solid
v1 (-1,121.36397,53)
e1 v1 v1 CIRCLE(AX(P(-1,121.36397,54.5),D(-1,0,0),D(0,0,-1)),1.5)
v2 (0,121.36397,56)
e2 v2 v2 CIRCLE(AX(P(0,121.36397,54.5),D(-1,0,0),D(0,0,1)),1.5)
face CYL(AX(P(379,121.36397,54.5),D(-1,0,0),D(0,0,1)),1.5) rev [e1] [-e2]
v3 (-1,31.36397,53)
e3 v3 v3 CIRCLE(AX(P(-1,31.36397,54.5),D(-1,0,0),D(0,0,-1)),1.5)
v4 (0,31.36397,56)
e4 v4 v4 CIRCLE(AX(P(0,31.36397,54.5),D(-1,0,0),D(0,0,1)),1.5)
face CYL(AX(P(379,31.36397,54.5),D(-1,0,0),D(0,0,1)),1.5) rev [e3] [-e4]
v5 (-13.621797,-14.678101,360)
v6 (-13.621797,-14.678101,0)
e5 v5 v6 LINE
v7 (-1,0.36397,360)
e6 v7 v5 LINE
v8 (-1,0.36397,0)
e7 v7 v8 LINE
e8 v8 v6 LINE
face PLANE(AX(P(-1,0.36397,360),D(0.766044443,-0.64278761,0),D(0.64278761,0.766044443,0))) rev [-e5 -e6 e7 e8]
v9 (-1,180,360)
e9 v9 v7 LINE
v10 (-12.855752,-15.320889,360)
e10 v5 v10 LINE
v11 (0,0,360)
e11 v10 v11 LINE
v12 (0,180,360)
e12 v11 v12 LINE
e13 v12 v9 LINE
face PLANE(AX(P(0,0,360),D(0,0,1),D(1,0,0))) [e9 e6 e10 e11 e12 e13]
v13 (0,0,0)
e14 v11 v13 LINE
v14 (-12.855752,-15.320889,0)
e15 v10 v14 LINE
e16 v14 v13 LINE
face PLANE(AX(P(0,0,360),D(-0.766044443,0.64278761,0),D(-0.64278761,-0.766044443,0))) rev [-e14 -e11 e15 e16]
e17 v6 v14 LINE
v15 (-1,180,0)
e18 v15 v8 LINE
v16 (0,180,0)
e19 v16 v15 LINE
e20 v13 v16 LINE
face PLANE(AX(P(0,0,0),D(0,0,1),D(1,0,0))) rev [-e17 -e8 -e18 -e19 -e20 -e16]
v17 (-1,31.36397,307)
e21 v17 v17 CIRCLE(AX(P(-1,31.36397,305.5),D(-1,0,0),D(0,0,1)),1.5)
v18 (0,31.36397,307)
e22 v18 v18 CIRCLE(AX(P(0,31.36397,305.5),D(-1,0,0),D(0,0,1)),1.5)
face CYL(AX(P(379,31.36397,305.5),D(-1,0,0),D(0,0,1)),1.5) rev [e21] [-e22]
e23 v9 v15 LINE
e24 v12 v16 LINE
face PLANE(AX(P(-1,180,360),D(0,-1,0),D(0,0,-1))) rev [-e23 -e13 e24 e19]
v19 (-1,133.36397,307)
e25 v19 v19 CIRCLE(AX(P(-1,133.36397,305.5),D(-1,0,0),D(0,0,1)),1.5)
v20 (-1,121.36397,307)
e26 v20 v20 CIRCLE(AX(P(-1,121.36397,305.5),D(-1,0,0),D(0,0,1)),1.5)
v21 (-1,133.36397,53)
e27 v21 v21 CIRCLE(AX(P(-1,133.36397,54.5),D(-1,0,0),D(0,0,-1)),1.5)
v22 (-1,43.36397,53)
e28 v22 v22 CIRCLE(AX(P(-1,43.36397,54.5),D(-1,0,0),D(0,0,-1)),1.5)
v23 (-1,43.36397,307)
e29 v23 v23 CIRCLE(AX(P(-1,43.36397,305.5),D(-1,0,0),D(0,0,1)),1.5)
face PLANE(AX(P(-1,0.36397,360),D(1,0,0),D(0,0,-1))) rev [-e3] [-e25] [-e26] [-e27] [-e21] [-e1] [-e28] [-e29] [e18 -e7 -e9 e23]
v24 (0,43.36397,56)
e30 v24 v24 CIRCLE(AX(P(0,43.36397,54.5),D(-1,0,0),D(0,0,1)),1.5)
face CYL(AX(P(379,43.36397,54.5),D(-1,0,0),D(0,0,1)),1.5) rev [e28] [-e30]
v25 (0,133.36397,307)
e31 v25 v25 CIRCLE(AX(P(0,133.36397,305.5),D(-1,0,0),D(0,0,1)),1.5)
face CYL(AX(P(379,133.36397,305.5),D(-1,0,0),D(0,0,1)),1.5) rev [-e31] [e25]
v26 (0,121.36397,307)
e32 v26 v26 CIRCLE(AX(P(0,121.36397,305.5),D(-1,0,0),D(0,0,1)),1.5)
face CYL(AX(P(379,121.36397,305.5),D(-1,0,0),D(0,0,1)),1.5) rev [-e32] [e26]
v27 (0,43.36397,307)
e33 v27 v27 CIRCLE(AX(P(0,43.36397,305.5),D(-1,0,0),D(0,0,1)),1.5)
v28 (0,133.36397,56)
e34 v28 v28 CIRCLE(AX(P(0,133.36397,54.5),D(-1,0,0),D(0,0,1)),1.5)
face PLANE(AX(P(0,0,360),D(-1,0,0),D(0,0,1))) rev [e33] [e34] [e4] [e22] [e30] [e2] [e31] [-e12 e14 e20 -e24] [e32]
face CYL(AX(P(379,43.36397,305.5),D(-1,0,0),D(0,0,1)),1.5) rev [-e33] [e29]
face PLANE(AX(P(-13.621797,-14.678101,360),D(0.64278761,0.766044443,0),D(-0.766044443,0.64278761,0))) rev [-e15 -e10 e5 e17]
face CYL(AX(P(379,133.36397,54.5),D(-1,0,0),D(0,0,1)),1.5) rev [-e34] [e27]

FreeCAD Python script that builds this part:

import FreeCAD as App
import Part
import Sketcher
from FreeCAD import Vector
Q = App.Units.Quantity


def add_polygon(sketch, points):
    """Adds a closed chain of lines whose ends are joined by coincident constraints."""
    first, n = sketch.GeometryCount, len(points)
    for a, b in zip(points, points[1:] + points[:1]):
        sketch.addGeometry(Part.LineSegment(App.Vector(*a, 0), App.Vector(*b, 0)), False)
    for i in range(n):
        sketch.addConstraint(Sketcher.Constraint("Coincident", first + i, 2, first + (i + 1) % n, 1))

doc = App.newDocument("Part")
body = doc.addObject("PartDesign::Body", "Body")

sketch1 = body.newObject("Sketcher::SketchObject", "Sketch")
sketch1.AttachmentSupport = (doc.getObject("XY_Plane"), [""])
sketch1.MapMode = "FlatFace"
add_polygon(sketch1, [(0, 0), (0, 180), (-1, 180), (-1, 0.4), (-13.6, -14.7), (-12.9, -15.3)])
sketch1.addConstraint([
    Sketcher.Constraint("Vertical", 0),
    Sketcher.Constraint("Horizontal", 1),
    Sketcher.Constraint("Vertical", 2),
    Sketcher.Constraint("Coincident", 5, 2, -1, 1),
    Sketcher.Constraint("Perpendicular", 3, 4),
    Sketcher.Constraint("Perpendicular", 4, 5),
    Sketcher.Constraint("DistanceX", 1, 2, 1, 1, 1.0),
    Sketcher.Constraint("DistanceY", 0, 1, 0, 2, 180.0),
    Sketcher.Constraint("Angle", 3, Q("-130 deg")),
    Sketcher.Constraint("Distance", 4, 1.0),
    Sketcher.Constraint("Distance", 5, 20.0),
])
pad1 = body.newObject("PartDesign::Pad", "Pad")
pad1.Profile = sketch1
pad1.Length = 360

sketch2 = body.newObject("Sketcher::SketchObject", "Sketch001")
sketch2.AttachmentSupport = (doc.getObject("YZ_Plane"), [""])
sketch2.MapMode = "FlatFace"
sketch2.AttachmentOffset = App.Placement(Vector(0, 0, -1), App.Rotation())
sketch2.addGeometry([
    Part.Circle(Vector(31.4, 305.5, 0), Vector(0, 0, 1), 1.5),
    Part.Circle(Vector(43.4, 305.5, 0), Vector(0, 0, 1), 1.5),
    Part.Circle(Vector(121.4, 305.5, 0), Vector(0, 0, 1), 1.5),
    Part.Circle(Vector(133.4, 305.5, 0), Vector(0, 0, 1), 1.5),
    Part.Circle(Vector(121.4, 54.5, 0), Vector(0, 0, 1), 1.5),
    Part.Circle(Vector(31.4, 54.5, 0), Vector(0, 0, 1), 1.5),
    Part.Circle(Vector(43.4, 54.5, 0), Vector(0, 0, 1), 1.5),
    Part.Circle(Vector(133.4, 54.5, 0), Vector(0, 0, 1), 1.5),
], False)
sketch2.addConstraint([
    Sketcher.Constraint("Equal", 0, 1),
    Sketcher.Constraint("Equal", 1, 2),
    Sketcher.Constraint("Equal", 2, 3),
    Sketcher.Constraint("Equal", 3, 4),
    Sketcher.Constraint("Equal", 4, 5),
    Sketcher.Constraint("Equal", 5, 6),
    Sketcher.Constraint("Equal", 6, 7),
    Sketcher.Constraint("Horizontal", 0, 3, 1, 3),
    Sketcher.Constraint("Horizontal", 1, 3, 2, 3),
    Sketcher.Constraint("Horizontal", 2, 3, 3, 3),
    Sketcher.Constraint("Horizontal", 4, 3, 5, 3),
    Sketcher.Constraint("Horizontal", 5, 3, 6, 3),
    Sketcher.Constraint("Horizontal", 6, 3, 7, 3),
    Sketcher.Constraint("Vertical", 2, 3, 4, 3),
    Sketcher.Constraint("Vertical", 0, 3, 5, 3),
    Sketcher.Constraint("Vertical", 1, 3, 6, 3),
    Sketcher.Constraint("Vertical", 3, 3, 7, 3),
    Sketcher.Constraint("Diameter", 0, 3.0),
    Sketcher.Constraint("DistanceX", 0, 3, 1, 3, 12.0),
    Sketcher.Constraint("DistanceX", 1, 3, 2, 3, 78.0),
    Sketcher.Constraint("DistanceX", 2, 3, 3, 3, 12.0),
    Sketcher.Constraint("DistanceY", 4, 3, 2, 3, 251.0),
    Sketcher.Constraint("DistanceY", -1, 1, 0, 3, 305.5),
    Sketcher.Constraint("DistanceX", -1, 1, 0, 3, 31.36397),
])
pocket1 = body.newObject("PartDesign::Pocket", "Pocket")
pocket1.Profile = sketch2
pocket1.Length = 380
pocket1.Reversed = True

doc.recompute()
